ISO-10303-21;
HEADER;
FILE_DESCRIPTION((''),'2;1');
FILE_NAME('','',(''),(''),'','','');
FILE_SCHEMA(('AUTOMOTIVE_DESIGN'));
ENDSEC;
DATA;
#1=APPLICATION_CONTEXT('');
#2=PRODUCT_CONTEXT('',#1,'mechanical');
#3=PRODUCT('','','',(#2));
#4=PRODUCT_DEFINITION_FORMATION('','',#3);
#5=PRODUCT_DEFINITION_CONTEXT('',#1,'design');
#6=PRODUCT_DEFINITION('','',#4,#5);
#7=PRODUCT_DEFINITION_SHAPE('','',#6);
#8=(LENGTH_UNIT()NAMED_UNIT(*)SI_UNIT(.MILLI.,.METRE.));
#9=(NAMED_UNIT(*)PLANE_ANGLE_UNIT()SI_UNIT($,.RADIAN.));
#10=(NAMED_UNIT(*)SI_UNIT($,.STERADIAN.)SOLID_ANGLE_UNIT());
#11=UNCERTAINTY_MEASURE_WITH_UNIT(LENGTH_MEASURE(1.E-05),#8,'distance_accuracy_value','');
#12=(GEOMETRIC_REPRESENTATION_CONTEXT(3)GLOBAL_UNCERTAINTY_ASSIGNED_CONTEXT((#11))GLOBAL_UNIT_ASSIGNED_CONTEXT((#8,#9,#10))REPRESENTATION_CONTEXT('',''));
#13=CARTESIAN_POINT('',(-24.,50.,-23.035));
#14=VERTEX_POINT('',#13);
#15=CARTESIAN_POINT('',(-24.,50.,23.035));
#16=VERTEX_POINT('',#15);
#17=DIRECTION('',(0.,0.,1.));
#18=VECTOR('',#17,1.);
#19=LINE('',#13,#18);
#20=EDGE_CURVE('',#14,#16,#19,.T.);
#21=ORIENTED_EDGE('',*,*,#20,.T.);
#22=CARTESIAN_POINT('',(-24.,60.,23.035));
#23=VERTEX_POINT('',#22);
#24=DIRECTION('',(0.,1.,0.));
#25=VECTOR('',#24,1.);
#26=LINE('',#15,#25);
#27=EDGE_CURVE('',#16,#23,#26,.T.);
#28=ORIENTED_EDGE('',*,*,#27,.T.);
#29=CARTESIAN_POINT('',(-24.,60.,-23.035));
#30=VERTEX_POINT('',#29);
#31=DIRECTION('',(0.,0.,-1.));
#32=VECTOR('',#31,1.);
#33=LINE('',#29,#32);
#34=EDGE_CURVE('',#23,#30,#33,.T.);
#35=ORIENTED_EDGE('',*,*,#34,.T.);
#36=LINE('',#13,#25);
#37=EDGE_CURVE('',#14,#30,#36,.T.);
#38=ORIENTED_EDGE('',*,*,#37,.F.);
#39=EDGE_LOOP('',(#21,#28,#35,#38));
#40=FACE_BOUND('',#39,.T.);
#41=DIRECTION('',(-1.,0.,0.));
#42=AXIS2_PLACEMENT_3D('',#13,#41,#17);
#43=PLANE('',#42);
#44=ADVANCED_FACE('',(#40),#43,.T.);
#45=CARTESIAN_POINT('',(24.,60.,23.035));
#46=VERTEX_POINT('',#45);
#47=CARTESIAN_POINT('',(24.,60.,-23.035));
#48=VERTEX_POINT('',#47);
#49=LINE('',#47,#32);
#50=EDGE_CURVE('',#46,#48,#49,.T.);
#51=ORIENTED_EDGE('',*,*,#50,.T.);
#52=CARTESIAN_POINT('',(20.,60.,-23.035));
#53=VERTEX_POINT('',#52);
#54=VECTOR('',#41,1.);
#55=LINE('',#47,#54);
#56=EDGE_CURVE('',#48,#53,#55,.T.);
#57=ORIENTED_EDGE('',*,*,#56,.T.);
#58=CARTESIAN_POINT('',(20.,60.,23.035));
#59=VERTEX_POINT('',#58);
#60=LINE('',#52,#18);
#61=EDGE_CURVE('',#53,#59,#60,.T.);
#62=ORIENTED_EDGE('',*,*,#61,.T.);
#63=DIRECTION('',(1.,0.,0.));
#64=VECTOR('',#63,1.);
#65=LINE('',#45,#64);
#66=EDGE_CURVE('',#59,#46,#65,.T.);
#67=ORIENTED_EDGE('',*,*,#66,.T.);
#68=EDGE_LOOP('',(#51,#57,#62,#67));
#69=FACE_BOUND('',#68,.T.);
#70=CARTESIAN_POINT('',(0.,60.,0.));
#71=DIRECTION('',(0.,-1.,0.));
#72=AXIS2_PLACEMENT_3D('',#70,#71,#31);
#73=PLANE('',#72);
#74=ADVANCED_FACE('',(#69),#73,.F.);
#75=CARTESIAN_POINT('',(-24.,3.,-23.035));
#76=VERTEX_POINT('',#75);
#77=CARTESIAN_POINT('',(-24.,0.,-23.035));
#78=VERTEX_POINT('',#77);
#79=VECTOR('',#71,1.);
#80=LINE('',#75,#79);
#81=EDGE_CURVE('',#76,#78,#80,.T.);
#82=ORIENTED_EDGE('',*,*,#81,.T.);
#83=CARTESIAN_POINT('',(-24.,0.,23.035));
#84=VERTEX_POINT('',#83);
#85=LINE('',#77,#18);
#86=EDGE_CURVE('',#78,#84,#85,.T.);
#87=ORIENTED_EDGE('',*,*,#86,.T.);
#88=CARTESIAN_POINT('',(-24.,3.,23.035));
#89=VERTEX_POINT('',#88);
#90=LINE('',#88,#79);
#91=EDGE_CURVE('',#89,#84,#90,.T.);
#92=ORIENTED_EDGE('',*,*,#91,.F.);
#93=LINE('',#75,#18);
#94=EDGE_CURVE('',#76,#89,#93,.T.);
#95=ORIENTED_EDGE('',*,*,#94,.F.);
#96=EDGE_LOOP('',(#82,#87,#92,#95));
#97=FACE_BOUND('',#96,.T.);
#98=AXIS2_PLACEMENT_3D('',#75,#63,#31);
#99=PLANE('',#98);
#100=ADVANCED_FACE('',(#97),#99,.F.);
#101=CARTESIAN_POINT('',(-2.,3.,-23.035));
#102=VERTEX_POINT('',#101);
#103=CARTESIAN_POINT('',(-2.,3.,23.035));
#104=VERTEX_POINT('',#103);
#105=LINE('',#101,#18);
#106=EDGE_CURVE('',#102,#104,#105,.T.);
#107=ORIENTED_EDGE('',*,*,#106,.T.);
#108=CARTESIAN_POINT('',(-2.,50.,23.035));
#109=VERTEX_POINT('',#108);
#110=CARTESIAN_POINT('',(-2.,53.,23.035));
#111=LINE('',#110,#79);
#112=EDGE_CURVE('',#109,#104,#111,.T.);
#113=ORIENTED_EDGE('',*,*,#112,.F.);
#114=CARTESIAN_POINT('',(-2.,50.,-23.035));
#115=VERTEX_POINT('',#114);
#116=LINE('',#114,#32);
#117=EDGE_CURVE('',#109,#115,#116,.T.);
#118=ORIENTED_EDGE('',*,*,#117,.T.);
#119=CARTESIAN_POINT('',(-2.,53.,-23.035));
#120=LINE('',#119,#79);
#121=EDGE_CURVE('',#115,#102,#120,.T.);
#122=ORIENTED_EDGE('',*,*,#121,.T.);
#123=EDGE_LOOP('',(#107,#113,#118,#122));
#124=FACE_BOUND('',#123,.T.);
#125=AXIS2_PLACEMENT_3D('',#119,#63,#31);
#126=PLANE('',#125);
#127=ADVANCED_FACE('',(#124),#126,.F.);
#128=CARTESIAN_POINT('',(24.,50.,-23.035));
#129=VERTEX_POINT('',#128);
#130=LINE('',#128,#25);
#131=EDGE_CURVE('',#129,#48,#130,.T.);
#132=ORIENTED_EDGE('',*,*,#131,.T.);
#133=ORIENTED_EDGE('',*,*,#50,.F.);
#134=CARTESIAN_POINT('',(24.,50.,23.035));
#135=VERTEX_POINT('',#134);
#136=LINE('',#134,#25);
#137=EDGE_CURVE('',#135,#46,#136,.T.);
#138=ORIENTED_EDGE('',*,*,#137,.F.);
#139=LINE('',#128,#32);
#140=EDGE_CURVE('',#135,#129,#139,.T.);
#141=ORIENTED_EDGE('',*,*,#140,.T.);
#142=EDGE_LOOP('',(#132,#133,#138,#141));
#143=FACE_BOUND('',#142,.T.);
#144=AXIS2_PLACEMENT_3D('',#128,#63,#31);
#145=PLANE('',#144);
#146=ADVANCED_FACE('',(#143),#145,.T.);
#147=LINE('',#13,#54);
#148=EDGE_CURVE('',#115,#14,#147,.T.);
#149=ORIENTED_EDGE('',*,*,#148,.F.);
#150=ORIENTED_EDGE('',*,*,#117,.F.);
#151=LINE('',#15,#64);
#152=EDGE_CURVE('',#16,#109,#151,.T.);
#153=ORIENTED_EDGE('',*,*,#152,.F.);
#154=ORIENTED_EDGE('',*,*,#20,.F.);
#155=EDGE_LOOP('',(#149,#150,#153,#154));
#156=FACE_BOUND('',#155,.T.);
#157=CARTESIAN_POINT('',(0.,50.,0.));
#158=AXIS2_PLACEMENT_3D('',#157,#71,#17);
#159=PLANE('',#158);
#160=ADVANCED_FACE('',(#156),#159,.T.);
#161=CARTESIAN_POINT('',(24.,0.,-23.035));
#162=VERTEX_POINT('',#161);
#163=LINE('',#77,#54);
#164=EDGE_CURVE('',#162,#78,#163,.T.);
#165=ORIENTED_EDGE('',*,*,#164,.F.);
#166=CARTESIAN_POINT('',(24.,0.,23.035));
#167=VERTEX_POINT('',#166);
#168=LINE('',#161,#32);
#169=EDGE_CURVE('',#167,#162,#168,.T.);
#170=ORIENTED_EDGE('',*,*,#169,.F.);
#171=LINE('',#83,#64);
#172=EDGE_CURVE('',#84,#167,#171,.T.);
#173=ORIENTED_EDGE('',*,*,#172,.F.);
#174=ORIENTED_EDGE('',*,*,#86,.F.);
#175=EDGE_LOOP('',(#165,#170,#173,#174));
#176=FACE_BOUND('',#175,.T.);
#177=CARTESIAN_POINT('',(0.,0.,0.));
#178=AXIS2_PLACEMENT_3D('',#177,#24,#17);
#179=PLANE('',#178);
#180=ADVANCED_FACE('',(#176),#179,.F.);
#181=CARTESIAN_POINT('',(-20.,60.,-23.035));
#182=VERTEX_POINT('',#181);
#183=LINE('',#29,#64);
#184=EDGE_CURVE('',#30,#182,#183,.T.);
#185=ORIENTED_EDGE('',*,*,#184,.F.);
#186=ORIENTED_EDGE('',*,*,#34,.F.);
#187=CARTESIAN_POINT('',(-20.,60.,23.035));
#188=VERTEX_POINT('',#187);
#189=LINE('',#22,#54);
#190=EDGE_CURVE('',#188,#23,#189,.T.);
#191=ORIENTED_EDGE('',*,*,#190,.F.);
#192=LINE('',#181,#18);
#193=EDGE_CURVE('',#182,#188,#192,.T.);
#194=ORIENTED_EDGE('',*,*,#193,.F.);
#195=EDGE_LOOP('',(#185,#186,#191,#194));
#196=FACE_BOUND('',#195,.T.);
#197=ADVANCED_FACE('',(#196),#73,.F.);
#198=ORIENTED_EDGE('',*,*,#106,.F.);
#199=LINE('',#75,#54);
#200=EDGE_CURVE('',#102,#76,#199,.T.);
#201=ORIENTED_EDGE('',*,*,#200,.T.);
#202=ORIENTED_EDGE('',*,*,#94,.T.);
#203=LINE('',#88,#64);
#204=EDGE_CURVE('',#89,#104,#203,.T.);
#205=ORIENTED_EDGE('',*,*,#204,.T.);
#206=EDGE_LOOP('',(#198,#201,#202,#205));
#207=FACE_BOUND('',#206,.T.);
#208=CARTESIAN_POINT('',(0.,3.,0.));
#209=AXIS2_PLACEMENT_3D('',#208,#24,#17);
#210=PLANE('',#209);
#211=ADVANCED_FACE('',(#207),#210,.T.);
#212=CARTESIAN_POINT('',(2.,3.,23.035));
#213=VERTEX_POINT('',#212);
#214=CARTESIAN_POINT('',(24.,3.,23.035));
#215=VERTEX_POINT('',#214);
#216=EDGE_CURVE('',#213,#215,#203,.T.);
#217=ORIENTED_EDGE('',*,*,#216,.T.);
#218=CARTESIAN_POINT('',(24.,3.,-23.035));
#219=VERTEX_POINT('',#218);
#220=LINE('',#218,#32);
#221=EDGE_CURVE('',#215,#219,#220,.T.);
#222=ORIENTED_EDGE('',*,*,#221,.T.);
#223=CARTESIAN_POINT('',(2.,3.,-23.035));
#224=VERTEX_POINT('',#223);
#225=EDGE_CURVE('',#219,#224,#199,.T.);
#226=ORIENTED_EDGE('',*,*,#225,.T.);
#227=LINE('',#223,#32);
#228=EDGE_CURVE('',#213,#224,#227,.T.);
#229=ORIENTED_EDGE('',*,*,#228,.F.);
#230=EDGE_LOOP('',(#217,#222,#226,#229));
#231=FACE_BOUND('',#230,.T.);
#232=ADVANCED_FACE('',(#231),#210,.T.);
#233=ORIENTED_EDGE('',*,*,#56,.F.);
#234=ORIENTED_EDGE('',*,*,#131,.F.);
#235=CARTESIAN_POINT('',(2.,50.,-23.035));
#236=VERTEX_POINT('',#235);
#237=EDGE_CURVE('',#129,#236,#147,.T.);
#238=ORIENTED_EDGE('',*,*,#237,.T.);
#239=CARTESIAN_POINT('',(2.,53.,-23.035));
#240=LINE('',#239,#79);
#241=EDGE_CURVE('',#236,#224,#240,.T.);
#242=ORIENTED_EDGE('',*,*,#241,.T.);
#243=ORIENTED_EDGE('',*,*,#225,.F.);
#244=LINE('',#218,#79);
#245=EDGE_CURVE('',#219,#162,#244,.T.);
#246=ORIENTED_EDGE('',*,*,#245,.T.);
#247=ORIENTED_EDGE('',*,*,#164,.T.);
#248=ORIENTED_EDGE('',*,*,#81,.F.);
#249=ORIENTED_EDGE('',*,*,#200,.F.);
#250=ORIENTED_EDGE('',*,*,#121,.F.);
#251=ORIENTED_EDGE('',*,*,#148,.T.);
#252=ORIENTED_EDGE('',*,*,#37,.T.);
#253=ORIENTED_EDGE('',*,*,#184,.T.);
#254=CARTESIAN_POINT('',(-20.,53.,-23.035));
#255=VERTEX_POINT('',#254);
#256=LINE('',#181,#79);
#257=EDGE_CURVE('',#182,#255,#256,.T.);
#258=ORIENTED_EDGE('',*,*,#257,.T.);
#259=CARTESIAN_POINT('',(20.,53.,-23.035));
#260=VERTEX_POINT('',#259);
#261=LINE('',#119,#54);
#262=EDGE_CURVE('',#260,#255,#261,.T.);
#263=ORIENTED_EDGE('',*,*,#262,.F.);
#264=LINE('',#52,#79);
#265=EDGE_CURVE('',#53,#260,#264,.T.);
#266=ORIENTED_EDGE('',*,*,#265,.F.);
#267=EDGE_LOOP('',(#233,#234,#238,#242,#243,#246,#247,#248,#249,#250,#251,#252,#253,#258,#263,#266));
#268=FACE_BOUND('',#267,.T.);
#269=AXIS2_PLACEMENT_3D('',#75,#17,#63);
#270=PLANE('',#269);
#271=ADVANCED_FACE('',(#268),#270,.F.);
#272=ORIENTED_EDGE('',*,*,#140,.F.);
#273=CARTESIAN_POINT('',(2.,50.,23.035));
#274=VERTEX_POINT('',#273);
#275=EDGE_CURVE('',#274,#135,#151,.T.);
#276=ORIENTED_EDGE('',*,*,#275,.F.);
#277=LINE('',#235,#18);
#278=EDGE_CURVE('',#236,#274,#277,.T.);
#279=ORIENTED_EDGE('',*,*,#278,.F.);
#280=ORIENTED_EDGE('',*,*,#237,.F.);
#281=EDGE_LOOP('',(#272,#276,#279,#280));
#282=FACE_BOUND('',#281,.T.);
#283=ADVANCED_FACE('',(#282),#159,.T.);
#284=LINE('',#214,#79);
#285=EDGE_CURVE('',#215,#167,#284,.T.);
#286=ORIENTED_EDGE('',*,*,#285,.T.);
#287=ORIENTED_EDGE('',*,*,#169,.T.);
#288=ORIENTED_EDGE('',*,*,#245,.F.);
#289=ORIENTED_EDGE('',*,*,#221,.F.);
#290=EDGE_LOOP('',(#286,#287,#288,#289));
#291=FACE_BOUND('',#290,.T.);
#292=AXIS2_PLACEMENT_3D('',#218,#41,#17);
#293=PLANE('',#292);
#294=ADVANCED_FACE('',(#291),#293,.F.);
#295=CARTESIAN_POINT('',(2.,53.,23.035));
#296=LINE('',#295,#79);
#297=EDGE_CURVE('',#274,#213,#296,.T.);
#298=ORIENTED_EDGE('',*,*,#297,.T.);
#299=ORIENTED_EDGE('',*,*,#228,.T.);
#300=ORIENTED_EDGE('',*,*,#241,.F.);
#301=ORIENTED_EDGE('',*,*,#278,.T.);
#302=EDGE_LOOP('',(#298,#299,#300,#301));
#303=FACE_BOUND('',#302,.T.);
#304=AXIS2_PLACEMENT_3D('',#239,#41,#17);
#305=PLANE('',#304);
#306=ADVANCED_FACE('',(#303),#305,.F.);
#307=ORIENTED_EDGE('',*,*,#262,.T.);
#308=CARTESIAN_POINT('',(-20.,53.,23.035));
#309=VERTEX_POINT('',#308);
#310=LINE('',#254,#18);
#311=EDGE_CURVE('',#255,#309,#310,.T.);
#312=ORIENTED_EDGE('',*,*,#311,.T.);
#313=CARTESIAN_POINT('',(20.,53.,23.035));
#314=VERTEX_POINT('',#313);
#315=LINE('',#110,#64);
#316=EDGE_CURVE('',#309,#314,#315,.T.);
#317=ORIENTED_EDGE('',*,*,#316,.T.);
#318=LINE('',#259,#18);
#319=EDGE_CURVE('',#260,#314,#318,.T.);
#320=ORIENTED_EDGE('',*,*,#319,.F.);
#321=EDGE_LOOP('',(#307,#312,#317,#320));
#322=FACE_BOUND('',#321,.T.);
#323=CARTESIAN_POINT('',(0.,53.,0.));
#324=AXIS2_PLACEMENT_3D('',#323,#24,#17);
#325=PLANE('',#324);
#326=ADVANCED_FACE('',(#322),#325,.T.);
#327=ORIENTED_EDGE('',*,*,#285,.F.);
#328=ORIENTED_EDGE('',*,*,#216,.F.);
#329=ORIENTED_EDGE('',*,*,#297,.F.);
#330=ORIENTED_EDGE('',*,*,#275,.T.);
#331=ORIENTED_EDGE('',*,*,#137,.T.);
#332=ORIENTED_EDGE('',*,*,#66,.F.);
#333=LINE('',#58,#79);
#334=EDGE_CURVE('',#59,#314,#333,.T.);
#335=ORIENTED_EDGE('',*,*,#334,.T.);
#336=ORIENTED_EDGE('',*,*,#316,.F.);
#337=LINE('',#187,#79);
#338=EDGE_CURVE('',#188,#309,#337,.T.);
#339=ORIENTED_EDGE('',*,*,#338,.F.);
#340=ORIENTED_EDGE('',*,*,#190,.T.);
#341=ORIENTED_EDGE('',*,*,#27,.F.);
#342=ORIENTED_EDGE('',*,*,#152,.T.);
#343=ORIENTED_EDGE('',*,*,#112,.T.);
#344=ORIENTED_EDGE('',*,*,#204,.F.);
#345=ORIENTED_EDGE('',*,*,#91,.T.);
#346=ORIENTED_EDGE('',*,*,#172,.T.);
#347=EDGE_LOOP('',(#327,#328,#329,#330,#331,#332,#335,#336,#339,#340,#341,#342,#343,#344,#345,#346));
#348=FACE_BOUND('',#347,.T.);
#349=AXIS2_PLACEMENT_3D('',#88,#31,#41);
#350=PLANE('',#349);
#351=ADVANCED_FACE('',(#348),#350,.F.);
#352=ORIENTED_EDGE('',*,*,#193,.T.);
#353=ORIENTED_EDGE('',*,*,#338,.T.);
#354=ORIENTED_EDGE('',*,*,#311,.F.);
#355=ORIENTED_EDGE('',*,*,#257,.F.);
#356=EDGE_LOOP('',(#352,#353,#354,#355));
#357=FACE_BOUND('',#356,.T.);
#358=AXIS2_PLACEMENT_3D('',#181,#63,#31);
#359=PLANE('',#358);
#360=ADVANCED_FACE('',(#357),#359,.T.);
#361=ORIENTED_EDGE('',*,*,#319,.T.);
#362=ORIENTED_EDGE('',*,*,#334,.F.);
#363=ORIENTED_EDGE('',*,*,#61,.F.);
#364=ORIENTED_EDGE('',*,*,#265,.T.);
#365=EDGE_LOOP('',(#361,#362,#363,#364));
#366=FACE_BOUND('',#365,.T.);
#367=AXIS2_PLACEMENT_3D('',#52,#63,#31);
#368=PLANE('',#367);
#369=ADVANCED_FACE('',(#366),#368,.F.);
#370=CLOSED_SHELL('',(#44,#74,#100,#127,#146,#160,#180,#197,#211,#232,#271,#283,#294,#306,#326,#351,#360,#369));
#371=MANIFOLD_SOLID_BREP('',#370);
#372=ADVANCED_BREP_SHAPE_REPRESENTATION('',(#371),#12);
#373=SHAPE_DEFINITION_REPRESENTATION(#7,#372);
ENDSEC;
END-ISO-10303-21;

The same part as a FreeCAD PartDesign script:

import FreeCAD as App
import Part
import Sketcher

doc = App.newDocument("Part")
params = doc.addObject("Spreadsheet::Sheet", "Params")
for row, (alias, value) in enumerate([
    ("sketch1_width", "48 mm"),
    ("sketch1_height", "46.07 mm"),
    ("pad1_length", "3 mm"),
    ("sketch2_width", "4 mm"),
    ("sketch2_height", "46.07 mm"),
    ("pad2_length", "50 mm"),
    ("sketch3_width", "4 mm"),
    ("sketch3_height", "46.07 mm"),
    ("pad3_length", "7 mm"),
], start=1):
    params.set(f"A{row}", alias)
    params.set(f"B{row}", "=" + value)
    params.setAlias(f"B{row}", alias)

body = doc.addObject("PartDesign::Body", "Body")

sketch1 = body.newObject("Sketcher::SketchObject", "Sketch")
sketch1.AttachmentSupport = (doc.getObject("XZ_Plane"), [""])
sketch1.MapMode = "FlatFace"
sketch1.addGeometry(Part.LineSegment(App.Vector(-24, -23, 0), App.Vector(-24, 23, 0)), False)
sketch1.addGeometry(Part.LineSegment(App.Vector(-24, 23, 0), App.Vector(24, 23, 0)), False)
sketch1.addGeometry(Part.LineSegment(App.Vector(24, 23, 0), App.Vector(24, -23, 0)), False)
sketch1.addGeometry(Part.LineSegment(App.Vector(24, -23, 0), App.Vector(-24, -23, 0)), False)
sketch1.addConstraint(Sketcher.Constraint("Coincident", 0, 2, 1, 1))
sketch1.addConstraint(Sketcher.Constraint("Coincident", 1, 2, 2, 1))
sketch1.addConstraint(Sketcher.Constraint("Coincident", 2, 2, 3, 1))
sketch1.addConstraint(Sketcher.Constraint("Coincident", 3, 2, 0, 1))
sketch1.addConstraint(Sketcher.Constraint("Vertical", 0))
sketch1.addConstraint(Sketcher.Constraint("Horizontal", 1))
sketch1.addConstraint(Sketcher.Constraint("Vertical", 2))
sketch1.addConstraint(Sketcher.Constraint("Horizontal", 3))
sketch1.addConstraint(Sketcher.Constraint("Symmetric", 0, 2, 2, 2, -1, 1))
sketch1.addConstraint(Sketcher.Constraint("DistanceX", 1, 1, 1, 2, 48.0))
sketch1.addConstraint(Sketcher.Constraint("DistanceY", 0, 1, 0, 2, 46.07))
sketch1.setExpression("Constraints[9]", "Params.sketch1_width")
sketch1.setExpression("Constraints[10]", "Params.sketch1_height")
pad1 = body.newObject("PartDesign::Pad", "Pad")
pad1.Profile = sketch1
pad1.setExpression("Length", "Params.pad1_length")
pad1.Reversed = True

sketch2 = body.newObject("Sketcher::SketchObject", "Sketch001")
sketch2.AttachmentSupport = (doc.getObject("XZ_Plane"), [""])
sketch2.MapMode = "FlatFace"
sketch2.AttachmentOffset = App.Placement(App.Vector(0, 0, -3), App.Rotation())
sketch2.addGeometry(Part.LineSegment(App.Vector(-2, -23, 0), App.Vector(-2, 23, 0)), False)
sketch2.addGeometry(Part.LineSegment(App.Vector(-2, 23, 0), App.Vector(2, 23, 0)), False)
sketch2.addGeometry(Part.LineSegment(App.Vector(2, 23, 0), App.Vector(2, -23, 0)), False)
sketch2.addGeometry(Part.LineSegment(App.Vector(2, -23, 0), App.Vector(-2, -23, 0)), False)
sketch2.addConstraint(Sketcher.Constraint("Coincident", 0, 2, 1, 1))
sketch2.addConstraint(Sketcher.Constraint("Coincident", 1, 2, 2, 1))
sketch2.addConstraint(Sketcher.Constraint("Coincident", 2, 2, 3, 1))
sketch2.addConstraint(Sketcher.Constraint("Coincident", 3, 2, 0, 1))
sketch2.addConstraint(Sketcher.Constraint("Vertical", 0))
sketch2.addConstraint(Sketcher.Constraint("Horizontal", 1))
sketch2.addConstraint(Sketcher.Constraint("Vertical", 2))
sketch2.addConstraint(Sketcher.Constraint("Horizontal", 3))
sketch2.addConstraint(Sketcher.Constraint("Symmetric", 0, 2, 2, 2, -1, 1))
sketch2.addConstraint(Sketcher.Constraint("DistanceX", 1, 1, 1, 2, 4.0))
sketch2.addConstraint(Sketcher.Constraint("DistanceY", 0, 1, 0, 2, 46.07))
sketch2.setExpression("Constraints[9]", "Params.sketch2_width")
sketch2.setExpression("Constraints[10]", "Params.sketch2_height")
pad2 = body.newObject("PartDesign::Pad", "Pad001")
pad2.Profile = sketch2
pad2.setExpression("Length", "Params.pad2_length")
pad2.Reversed = True
doc.recompute()

datumplane = body.newObject("PartDesign::Plane", "DatumPlane")
datumplane.AttachmentSupport = (doc.getObject("XZ_Plane"), [""])
datumplane.MapMode = "FlatFace"
datumplane.AttachmentOffset = App.Placement(App.Vector(0, 0, -26.5), App.Rotation())
mirrored = body.newObject("PartDesign::Mirrored", "Mirrored")
mirrored.Originals = [pad1]
mirrored.MirrorPlane = (datumplane, [""])
body.Tip = mirrored

sketch3 = body.newObject("Sketcher::SketchObject", "Sketch002")
sketch3.AttachmentSupport = (doc.getObject("XZ_Plane"), [""])
sketch3.MapMode = "FlatFace"
sketch3.AttachmentOffset = App.Placement(App.Vector(0, 0, -53), App.Rotation())
sketch3.addGeometry(Part.LineSegment(App.Vector(20, -23, 0), App.Vector(20, 23, 0)), False)
sketch3.addGeometry(Part.LineSegment(App.Vector(20, 23, 0), App.Vector(24, 23, 0)), False)
sketch3.addGeometry(Part.LineSegment(App.Vector(24, 23, 0), App.Vector(24, -23, 0)), False)
sketch3.addGeometry(Part.LineSegment(App.Vector(24, -23, 0), App.Vector(20, -23, 0)), False)
sketch3.addConstraint(Sketcher.Constraint("Coincident", 0, 2, 1, 1))
sketch3.addConstraint(Sketcher.Constraint("Coincident", 1, 2, 2, 1))
sketch3.addConstraint(Sketcher.Constraint("Coincident", 2, 2, 3, 1))
sketch3.addConstraint(Sketcher.Constraint("Coincident", 3, 2, 0, 1))
sketch3.addConstraint(Sketcher.Constraint("Vertical", 0))
sketch3.addConstraint(Sketcher.Constraint("Horizontal", 1))
sketch3.addConstraint(Sketcher.Constraint("Vertical", 2))
sketch3.addConstraint(Sketcher.Constraint("Horizontal", 3))
sketch3.addConstraint(Sketcher.Constraint("DistanceX", 1, 1, 1, 2, 4.0))
sketch3.addConstraint(Sketcher.Constraint("DistanceX", -1, 1, 0, 2, 20.0))
sketch3.addConstraint(Sketcher.Constraint("DistanceY", 0, 1, 0, 2, 46.07))
sketch3.addConstraint(Sketcher.Constraint("DistanceY", -1, 1, 0, 2, 23.035))
sketch3.setExpression("Constraints[8]", "Params.sketch3_width")
sketch3.setExpression("Constraints[10]", "Params.sketch3_height")
pad3 = body.newObject("PartDesign::Pad", "Pad002")
pad3.Profile = sketch3
pad3.setExpression("Length", "Params.pad3_length")
pad3.Reversed = True
doc.recompute()

mirrored2 = body.newObject("PartDesign::Mirrored", "Mirrored001")
mirrored2.Originals = [pad3]
mirrored2.MirrorPlane = (doc.getObject("YZ_Plane"), [""])
body.Tip = mirrored2

doc.recompute()
